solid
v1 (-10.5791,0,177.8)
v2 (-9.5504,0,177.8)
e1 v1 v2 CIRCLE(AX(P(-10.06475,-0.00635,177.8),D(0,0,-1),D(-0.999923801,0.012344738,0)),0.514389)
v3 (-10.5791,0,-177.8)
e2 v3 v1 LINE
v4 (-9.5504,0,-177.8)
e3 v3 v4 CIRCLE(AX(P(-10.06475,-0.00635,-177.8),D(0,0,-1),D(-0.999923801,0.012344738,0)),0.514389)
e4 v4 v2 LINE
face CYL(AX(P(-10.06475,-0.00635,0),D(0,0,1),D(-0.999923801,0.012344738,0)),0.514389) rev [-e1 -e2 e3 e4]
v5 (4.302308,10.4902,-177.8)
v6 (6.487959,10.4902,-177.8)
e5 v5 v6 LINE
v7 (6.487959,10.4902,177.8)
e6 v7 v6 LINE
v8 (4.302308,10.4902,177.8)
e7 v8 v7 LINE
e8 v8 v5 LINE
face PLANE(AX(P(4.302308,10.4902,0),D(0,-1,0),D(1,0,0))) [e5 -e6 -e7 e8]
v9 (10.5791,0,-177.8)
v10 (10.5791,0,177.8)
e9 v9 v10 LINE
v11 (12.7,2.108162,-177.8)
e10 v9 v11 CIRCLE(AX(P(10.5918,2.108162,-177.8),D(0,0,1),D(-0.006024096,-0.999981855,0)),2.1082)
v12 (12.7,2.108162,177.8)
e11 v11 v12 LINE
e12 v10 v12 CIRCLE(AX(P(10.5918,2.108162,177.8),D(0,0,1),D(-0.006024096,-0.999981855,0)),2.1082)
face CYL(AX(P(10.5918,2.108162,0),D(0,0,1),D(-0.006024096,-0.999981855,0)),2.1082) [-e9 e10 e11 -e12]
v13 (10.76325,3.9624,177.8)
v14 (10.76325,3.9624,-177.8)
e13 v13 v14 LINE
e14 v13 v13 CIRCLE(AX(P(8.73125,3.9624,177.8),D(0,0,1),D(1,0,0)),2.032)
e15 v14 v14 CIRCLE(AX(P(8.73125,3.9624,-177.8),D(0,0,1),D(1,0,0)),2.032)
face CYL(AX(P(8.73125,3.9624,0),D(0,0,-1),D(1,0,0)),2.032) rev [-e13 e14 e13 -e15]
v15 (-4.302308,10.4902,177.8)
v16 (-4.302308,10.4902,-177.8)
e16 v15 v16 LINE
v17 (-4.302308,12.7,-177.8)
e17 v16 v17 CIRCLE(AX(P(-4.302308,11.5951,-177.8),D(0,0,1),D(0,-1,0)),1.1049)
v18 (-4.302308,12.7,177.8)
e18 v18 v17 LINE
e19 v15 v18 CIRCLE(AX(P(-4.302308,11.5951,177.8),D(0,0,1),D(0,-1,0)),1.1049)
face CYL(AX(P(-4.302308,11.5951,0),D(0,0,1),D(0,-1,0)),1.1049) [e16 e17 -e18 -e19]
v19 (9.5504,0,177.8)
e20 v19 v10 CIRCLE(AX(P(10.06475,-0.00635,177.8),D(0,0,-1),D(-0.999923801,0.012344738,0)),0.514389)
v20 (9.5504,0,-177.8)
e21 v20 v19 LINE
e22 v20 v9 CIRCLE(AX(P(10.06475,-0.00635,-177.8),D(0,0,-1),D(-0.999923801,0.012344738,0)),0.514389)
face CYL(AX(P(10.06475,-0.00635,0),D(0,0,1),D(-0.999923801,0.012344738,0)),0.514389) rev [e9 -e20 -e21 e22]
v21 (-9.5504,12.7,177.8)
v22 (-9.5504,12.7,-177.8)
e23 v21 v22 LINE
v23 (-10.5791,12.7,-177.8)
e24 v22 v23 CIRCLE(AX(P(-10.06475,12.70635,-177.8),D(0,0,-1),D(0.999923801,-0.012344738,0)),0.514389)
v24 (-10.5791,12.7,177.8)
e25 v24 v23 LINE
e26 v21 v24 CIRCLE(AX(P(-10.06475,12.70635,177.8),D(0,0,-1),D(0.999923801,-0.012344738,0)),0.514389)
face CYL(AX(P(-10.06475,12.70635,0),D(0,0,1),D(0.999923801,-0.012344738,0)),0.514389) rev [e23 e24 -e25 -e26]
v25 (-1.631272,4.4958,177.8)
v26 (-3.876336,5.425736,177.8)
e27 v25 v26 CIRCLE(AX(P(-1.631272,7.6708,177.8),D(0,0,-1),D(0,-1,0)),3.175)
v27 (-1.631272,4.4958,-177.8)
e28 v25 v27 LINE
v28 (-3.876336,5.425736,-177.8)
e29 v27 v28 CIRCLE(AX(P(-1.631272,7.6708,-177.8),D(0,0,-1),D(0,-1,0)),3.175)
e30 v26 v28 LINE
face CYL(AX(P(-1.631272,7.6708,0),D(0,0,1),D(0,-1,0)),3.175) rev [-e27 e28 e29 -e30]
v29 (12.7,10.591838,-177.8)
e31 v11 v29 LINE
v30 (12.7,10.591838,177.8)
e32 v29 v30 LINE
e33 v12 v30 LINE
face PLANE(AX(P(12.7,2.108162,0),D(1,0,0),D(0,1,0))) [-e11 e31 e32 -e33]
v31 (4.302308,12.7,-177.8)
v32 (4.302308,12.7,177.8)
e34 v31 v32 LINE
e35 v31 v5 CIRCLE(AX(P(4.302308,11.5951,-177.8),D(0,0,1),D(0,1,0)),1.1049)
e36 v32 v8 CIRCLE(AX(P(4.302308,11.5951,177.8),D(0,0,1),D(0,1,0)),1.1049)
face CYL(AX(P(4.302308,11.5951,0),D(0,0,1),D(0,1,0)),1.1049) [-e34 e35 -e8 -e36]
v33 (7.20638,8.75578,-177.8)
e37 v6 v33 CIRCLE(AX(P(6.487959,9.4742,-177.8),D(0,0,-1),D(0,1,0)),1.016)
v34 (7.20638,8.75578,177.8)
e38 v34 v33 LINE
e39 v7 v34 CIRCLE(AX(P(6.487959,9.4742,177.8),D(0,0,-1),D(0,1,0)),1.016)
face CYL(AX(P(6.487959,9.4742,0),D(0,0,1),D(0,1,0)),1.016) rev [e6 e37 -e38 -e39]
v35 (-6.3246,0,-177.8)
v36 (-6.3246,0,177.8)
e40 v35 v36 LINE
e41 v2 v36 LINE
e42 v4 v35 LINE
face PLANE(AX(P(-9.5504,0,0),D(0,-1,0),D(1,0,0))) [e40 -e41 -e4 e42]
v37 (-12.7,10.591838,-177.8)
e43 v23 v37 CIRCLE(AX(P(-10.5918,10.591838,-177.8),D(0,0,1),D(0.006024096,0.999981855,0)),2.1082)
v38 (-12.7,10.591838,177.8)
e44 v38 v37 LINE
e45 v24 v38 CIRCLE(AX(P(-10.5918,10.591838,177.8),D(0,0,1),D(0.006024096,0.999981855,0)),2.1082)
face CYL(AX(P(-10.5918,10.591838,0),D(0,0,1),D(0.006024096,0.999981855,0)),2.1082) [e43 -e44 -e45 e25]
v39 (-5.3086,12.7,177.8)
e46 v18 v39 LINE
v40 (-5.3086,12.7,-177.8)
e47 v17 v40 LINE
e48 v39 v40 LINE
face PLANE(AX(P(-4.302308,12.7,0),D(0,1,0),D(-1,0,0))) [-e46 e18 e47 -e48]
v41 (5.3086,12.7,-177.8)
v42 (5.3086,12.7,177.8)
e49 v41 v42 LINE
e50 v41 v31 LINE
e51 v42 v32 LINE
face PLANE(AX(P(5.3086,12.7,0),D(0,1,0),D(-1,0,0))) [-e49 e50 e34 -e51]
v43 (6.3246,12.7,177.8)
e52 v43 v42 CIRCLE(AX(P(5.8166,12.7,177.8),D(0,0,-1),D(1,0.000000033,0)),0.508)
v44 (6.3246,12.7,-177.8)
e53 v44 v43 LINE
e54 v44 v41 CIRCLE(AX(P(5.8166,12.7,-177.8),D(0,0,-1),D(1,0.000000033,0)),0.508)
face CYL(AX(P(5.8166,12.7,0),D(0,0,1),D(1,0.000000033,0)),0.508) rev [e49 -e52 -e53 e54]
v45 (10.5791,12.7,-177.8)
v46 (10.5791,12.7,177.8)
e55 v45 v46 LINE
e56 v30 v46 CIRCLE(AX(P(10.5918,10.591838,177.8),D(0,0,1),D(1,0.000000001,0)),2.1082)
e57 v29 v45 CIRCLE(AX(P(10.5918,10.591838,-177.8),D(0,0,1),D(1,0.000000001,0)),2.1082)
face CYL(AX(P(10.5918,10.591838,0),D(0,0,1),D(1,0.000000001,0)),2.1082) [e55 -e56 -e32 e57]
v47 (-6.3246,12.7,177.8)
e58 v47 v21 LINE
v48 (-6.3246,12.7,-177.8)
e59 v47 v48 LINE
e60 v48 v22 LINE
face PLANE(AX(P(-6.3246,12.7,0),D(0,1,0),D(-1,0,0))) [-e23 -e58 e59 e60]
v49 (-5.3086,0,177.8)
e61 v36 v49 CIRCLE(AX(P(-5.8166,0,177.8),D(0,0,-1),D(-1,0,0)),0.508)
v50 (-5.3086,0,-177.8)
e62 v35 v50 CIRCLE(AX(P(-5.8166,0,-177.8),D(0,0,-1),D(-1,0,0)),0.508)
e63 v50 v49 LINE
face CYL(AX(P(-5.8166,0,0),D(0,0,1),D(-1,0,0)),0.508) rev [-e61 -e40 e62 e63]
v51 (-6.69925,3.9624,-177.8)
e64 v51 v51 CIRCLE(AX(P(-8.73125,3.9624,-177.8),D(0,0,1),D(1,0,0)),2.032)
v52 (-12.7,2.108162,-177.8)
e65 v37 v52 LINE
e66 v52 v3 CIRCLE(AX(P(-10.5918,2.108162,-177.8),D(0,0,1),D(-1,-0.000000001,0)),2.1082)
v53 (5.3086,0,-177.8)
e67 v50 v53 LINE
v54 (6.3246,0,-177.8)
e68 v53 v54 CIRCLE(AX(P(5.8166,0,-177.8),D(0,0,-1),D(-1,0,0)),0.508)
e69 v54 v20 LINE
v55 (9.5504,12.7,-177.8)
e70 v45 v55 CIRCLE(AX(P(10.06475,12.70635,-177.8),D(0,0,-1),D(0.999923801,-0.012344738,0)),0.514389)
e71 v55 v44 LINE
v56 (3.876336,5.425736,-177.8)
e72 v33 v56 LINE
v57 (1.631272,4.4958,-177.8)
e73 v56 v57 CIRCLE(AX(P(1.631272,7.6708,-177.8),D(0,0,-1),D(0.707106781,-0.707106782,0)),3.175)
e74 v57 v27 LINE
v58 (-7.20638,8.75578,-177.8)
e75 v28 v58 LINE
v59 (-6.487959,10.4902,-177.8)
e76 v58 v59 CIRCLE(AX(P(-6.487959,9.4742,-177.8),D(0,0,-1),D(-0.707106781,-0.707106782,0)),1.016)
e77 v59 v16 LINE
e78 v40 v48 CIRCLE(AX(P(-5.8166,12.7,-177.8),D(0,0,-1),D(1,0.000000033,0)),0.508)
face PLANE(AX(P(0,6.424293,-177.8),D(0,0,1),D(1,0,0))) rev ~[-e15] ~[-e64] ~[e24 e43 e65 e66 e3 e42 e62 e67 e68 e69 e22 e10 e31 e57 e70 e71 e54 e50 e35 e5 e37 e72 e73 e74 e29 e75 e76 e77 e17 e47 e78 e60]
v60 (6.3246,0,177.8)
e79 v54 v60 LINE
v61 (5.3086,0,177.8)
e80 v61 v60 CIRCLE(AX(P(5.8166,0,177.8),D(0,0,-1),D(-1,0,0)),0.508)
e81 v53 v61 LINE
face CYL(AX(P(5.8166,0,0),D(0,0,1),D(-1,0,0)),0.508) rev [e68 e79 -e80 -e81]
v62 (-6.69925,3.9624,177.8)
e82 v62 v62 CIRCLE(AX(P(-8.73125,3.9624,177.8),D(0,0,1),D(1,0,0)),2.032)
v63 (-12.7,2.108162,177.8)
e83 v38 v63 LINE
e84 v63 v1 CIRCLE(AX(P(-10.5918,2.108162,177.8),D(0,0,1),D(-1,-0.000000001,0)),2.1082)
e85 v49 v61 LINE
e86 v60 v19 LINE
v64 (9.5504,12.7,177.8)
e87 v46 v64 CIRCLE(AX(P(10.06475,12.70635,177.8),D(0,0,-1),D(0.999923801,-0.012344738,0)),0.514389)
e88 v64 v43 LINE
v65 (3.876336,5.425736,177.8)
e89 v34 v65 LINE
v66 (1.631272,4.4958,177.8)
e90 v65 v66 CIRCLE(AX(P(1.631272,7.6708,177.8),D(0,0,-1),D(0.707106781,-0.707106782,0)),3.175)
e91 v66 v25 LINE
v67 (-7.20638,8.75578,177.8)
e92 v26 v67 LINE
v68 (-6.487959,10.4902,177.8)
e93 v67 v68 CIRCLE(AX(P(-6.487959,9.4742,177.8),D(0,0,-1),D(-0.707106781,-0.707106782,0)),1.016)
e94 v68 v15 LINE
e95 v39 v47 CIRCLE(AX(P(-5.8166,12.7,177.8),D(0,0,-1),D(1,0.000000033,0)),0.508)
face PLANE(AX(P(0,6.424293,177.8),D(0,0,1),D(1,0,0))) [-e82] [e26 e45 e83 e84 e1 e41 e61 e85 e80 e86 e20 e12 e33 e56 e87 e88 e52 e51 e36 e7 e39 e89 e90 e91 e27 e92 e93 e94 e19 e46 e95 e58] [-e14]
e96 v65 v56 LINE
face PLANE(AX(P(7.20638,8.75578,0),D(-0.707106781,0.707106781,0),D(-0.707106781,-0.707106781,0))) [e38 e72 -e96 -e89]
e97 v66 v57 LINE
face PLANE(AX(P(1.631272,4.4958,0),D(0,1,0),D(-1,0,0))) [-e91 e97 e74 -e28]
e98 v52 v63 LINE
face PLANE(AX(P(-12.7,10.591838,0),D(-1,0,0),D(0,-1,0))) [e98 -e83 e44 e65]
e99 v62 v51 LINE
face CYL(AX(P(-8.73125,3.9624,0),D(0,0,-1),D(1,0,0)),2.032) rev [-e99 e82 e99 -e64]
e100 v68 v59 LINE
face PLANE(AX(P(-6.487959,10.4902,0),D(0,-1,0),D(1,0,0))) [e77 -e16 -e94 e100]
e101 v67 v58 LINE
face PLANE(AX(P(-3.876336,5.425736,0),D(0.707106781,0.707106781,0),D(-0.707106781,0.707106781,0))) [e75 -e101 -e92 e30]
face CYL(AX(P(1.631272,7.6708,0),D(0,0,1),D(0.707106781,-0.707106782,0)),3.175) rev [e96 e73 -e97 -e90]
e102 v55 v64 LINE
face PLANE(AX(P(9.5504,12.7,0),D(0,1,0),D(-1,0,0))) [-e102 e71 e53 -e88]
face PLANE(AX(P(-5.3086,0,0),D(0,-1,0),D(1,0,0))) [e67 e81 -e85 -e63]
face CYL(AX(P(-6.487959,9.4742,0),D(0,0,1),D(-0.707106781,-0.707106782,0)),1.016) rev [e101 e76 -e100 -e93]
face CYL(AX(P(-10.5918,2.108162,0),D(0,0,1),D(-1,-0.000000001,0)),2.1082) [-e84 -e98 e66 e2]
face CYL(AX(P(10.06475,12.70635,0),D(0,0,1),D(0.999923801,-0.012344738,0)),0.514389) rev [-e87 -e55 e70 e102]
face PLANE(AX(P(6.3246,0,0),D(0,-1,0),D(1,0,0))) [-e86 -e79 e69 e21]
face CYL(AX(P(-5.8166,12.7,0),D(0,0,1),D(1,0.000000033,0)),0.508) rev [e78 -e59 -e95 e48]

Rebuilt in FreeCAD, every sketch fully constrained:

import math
import FreeCAD as App
import Part
import Sketcher
from FreeCAD import Vector
Q = App.Units.Quantity

doc = App.newDocument("Part")
params = doc.addObject("Spreadsheet::Sheet", "Params")
for row, (alias, value) in enumerate([
    ("sketch1_diameter", "0.16 in"),
    ("sketch1_radius", "0.02 in"),
    ("sketch1_radius2", "0.04 in"),
    ("sketch1_radius3", "0.083 in"),
    ("sketch1_radius4", "0.125 in"),
    ("pad1_length", "14 in"),
], start=1):
    params.set(f"A{row}", alias)
    params.set(f"B{row}", "=" + value)
    params.setAlias(f"B{row}", alias)

body = doc.addObject("PartDesign::Body", "Body")

# Sketch on XY plane
sketch1 = doc.addObject("Sketcher::SketchObject", "Sketch")
body.addObject(sketch1)
sketch1.AttachmentSupport = (doc.XY_Plane, [""])
sketch1.MapMode = "FlatFace"
sketch1.addGeometry([
    Part.LineSegment(Vector(-12.7, 10.591838, 0), Vector(-12.7, 2.108162, 0)),  # 0
    Part.ArcOfCircle(Part.Circle(Vector(-10.5918, 2.108162, 0), Vector(0, 0, 1), 2.1082), math.radians(-180), math.radians(-89.654843)),  # 1
    Part.ArcOfCircle(Part.Circle(Vector(-10.06475, -0.00635, 0), Vector(0, 0, 1), 0.514389), math.radians(0.707319), math.radians(179.292681)),  # 2
    Part.LineSegment(Vector(-9.5504, 0, 0), Vector(-6.3246, 0, 0)),  # 3
    Part.ArcOfCircle(Part.Circle(Vector(-5.8166, 0, 0), Vector(0, 0, 1), 0.508), math.radians(0), math.radians(180)),  # 4
    Part.LineSegment(Vector(-5.3086, 0, 0), Vector(5.3086, 0, 0)),  # 5
    Part.ArcOfCircle(Part.Circle(Vector(5.8166, 0, 0), Vector(0, 0, 1), 0.508), math.radians(0), math.radians(180)),  # 6
    Part.LineSegment(Vector(6.3246, 0, 0), Vector(9.5504, 0, 0)),  # 7
    Part.ArcOfCircle(Part.Circle(Vector(10.06475, -0.00635, 0), Vector(0, 0, 1), 0.514389), math.radians(0.707319), math.radians(179.292681)),  # 8
    Part.ArcOfCircle(Part.Circle(Vector(10.5918, 2.108162, 0), Vector(0, 0, 1), 2.1082), math.radians(-90.345157), math.radians(0)),  # 9
    Part.LineSegment(Vector(12.7, 2.108162, 0), Vector(12.7, 10.591838, 0)),  # 10
    Part.ArcOfCircle(Part.Circle(Vector(10.5918, 10.591838, 0), Vector(0, 0, 1), 2.1082), math.radians(0), math.radians(90.345157)),  # 11
    Part.ArcOfCircle(Part.Circle(Vector(10.06475, 12.70635, 0), Vector(0, 0, 1), 0.514389), math.radians(-179.292681), math.radians(-0.707319)),  # 12
    Part.LineSegment(Vector(9.5504, 12.7, 0), Vector(6.3246, 12.7, 0)),  # 13
    Part.ArcOfCircle(Part.Circle(Vector(5.8166, 12.7, 0), Vector(0, 0, 1), 0.508), math.radians(179.999998), math.radians(360.000002)),  # 14
    Part.LineSegment(Vector(5.3086, 12.7, 0), Vector(4.302308, 12.7, 0)),  # 15
    Part.ArcOfCircle(Part.Circle(Vector(4.302308, 11.5951, 0), Vector(0, 0, 1), 1.1049), math.radians(90), math.radians(270)),  # 16
    Part.LineSegment(Vector(4.302308, 10.4902, 0), Vector(6.487959, 10.4902, 0)),  # 17
    Part.ArcOfCircle(Part.Circle(Vector(6.487959, 9.4742, 0), Vector(0, 0, 1), 1.016), math.radians(-45), math.radians(90)),  # 18
    Part.LineSegment(Vector(7.20638, 8.75578, 0), Vector(3.876336, 5.425736, 0)),  # 19
    Part.ArcOfCircle(Part.Circle(Vector(1.631272, 7.6708, 0), Vector(0, 0, 1), 3.175), math.radians(-90), math.radians(-45)),  # 20
    Part.LineSegment(Vector(1.631272, 4.4958, 0), Vector(-1.631272, 4.4958, 0)),  # 21
    Part.ArcOfCircle(Part.Circle(Vector(-1.631272, 7.6708, 0), Vector(0, 0, 1), 3.175), math.radians(-135), math.radians(-90)),  # 22
    Part.LineSegment(Vector(-3.876336, 5.425736, 0), Vector(-7.20638, 8.75578, 0)),  # 23
    Part.ArcOfCircle(Part.Circle(Vector(-6.487959, 9.4742, 0), Vector(0, 0, 1), 1.016), math.radians(90), math.radians(225)),  # 24
    Part.LineSegment(Vector(-6.487959, 10.4902, 0), Vector(-4.302308, 10.4902, 0)),  # 25
    Part.ArcOfCircle(Part.Circle(Vector(-4.302308, 11.5951, 0), Vector(0, 0, 1), 1.1049), math.radians(-90), math.radians(90)),  # 26
    Part.LineSegment(Vector(-4.302308, 12.7, 0), Vector(-5.3086, 12.7, 0)),  # 27
    Part.ArcOfCircle(Part.Circle(Vector(-5.8166, 12.7, 0), Vector(0, 0, 1), 0.508), math.radians(179.999998), math.radians(360.000002)),  # 28
    Part.LineSegment(Vector(-6.3246, 12.7, 0), Vector(-9.5504, 12.7, 0)),  # 29
    Part.ArcOfCircle(Part.Circle(Vector(-10.06475, 12.70635, 0), Vector(0, 0, 1), 0.514389), math.radians(-179.292681), math.radians(-0.707319)),  # 30
    Part.ArcOfCircle(Part.Circle(Vector(-10.5918, 10.591838, 0), Vector(0, 0, 1), 2.1082), math.radians(89.654843), math.radians(180)),  # 31
    Part.Circle(Vector(-8.73125, 3.9624, 0), Vector(0, 0, 1), 2.032),  # 32
    Part.Circle(Vector(8.73125, 3.9624, 0), Vector(0, 0, 1), 2.032),  # 33
], False)
sketch1.addConstraint([
    Sketcher.Constraint("Tangent", 0, 2, 1, 1),
    Sketcher.Constraint("Coincident", 1, 2, 2, 2),
    Sketcher.Constraint("Coincident", 2, 1, 3, 1),
    Sketcher.Constraint("Coincident", 3, 2, 4, 2),
    Sketcher.Constraint("Coincident", 4, 1, 5, 1),
    Sketcher.Constraint("Coincident", 5, 2, 6, 2),
    Sketcher.Constraint("Coincident", 6, 1, 7, 1),
    Sketcher.Constraint("Coincident", 7, 2, 8, 2),
    Sketcher.Constraint("Coincident", 8, 1, 9, 1),
    Sketcher.Constraint("Tangent", 9, 2, 10, 1),
    Sketcher.Constraint("Tangent", 10, 2, 11, 1),
    Sketcher.Constraint("Coincident", 11, 2, 12, 2),
    Sketcher.Constraint("Coincident", 12, 1, 13, 1),
    Sketcher.Constraint("Coincident", 13, 2, 14, 2),
    Sketcher.Constraint("Coincident", 14, 1, 15, 1),
    Sketcher.Constraint("Tangent", 15, 2, 16, 1),
    Sketcher.Constraint("Tangent", 16, 2, 17, 1),
    Sketcher.Constraint("Tangent", 17, 2, 18, 2),
    Sketcher.Constraint("Tangent", 18, 1, 19, 1),
    Sketcher.Constraint("Tangent", 19, 2, 20, 2),
    Sketcher.Constraint("Tangent", 20, 1, 21, 1),
    Sketcher.Constraint("Tangent", 21, 2, 22, 2),
    Sketcher.Constraint("Tangent", 22, 1, 23, 1),
    Sketcher.Constraint("Tangent", 23, 2, 24, 2),
    Sketcher.Constraint("Tangent", 24, 1, 25, 1),
    Sketcher.Constraint("Tangent", 25, 2, 26, 1),
    Sketcher.Constraint("Tangent", 26, 2, 27, 1),
    Sketcher.Constraint("Coincident", 27, 2, 28, 2),
    Sketcher.Constraint("Coincident", 28, 1, 29, 1),
    Sketcher.Constraint("Coincident", 29, 2, 30, 2),
    Sketcher.Constraint("Coincident", 30, 1, 31, 1),
    Sketcher.Constraint("Tangent", 31, 2, 0, 1),
    Sketcher.Constraint("Vertical", 0),
    Sketcher.Constraint("Horizontal", 3),
    Sketcher.Constraint("Horizontal", 5),
    Sketcher.Constraint("Horizontal", 7),
    Sketcher.Constraint("Vertical", 10),
    Sketcher.Constraint("Horizontal", 13),
    Sketcher.Constraint("Horizontal", 15),
    Sketcher.Constraint("Horizontal", 17),
    Sketcher.Constraint("Horizontal", 21),
    Sketcher.Constraint("Horizontal", 25),
    Sketcher.Constraint("Horizontal", 27),
    Sketcher.Constraint("Horizontal", 29),
    Sketcher.Constraint("Equal", 4, 6),
    Sketcher.Constraint("Equal", 2, 8),
    Sketcher.Constraint("Equal", 1, 9),
    Sketcher.Constraint("Equal", 9, 11),
    Sketcher.Constraint("Equal", 8, 12),
    Sketcher.Constraint("Equal", 6, 14),
    Sketcher.Constraint("Equal", 20, 22),
    Sketcher.Constraint("Equal", 18, 24),
    Sketcher.Constraint("Equal", 16, 26),
    Sketcher.Constraint("Equal", 14, 28),
    Sketcher.Constraint("Equal", 12, 30),
    Sketcher.Constraint("Equal", 11, 31),
    Sketcher.Constraint("Equal", 32, 33),
    Sketcher.Constraint("Symmetric", 4, 3, 6, 3, -1, 1),
    Sketcher.Constraint("Symmetric", 2, 1, 7, 2, -1, 1),
    Sketcher.Constraint("Symmetric", 1, 2, 8, 1, -1, 1),
    Sketcher.Constraint("Symmetric", 2, 3, 8, 3, -2),
    Sketcher.Constraint("Symmetric", 18, 3, 24, 3, -2),
    Sketcher.Constraint("Symmetric", 14, 3, 28, 3, -2),
    Sketcher.Constraint("Symmetric", 12, 3, 30, 3, -2),
    Sketcher.Constraint("Symmetric", 11, 3, 31, 3, -2),
    Sketcher.Constraint("Symmetric", 32, 3, 33, 3, -2),
    Sketcher.Constraint("PointOnObject", 4, 3, -1),
    Sketcher.Constraint("PointOnObject", 4, 1, -1),
    Sketcher.Constraint("Perpendicular", 19, 23),
    Sketcher.Constraint("Horizontal", 28, 3, 11, 2),
    Sketcher.Constraint("Horizontal", 11, 2, 12, 1),
    Sketcher.Constraint("Horizontal", 13, 2, 14, 1),
    Sketcher.Constraint("Horizontal", 19, 2, 22, 1),
    Sketcher.Constraint("Horizontal", 27, 2, 28, 1),
    Sketcher.Constraint("Vertical", 8, 3, 12, 3),
    Sketcher.Constraint("Vertical", 6, 3, 14, 3),
    Sketcher.Constraint("Vertical", 7, 2, 12, 1),
    Sketcher.Constraint("Equal", 17, 25),
    Sketcher.Constraint("Diameter", 32, Q("0.16 in")),
    Sketcher.Constraint("Radius", 4, Q("0.02 in")),
    Sketcher.Constraint("Radius", 18, Q("0.04 in")),
    Sketcher.Constraint("Radius", 1, Q("0.083 in")),
    Sketcher.Constraint("Radius", 20, Q("0.125 in")),
    Sketcher.Constraint("DistanceY", -1, 1, 14, 3, Q("0.5 in")),
    Sketcher.Constraint("DistanceX", 0, 2, -1, 1, Q("0.5 in")),
    Sketcher.Constraint("Radius", 16, Q("0.0435 in")),
    Sketcher.Constraint("DistanceX", 3, 1, 3, 2, Q("0.127 in")),
    Sketcher.Constraint("DistanceX", 5, 1, 5, 2, Q("0.418 in")),
    Sketcher.Constraint("DistanceY", -1, 1, 20, 3, Q("0.302 in")),
    Sketcher.Constraint("DistanceX", 32, 3, -1, 1, Q("0.34375 in")),
    Sketcher.Constraint("DistanceY", -1, 1, 32, 3, Q("0.156 in")),
    Sketcher.Constraint("Radius", 2, Q("0.514389 mm")),
    Sketcher.Constraint("DistanceY", 2, 3, 32, 3, Q("0.15625 in")),
    Sketcher.Constraint("DistanceX", 17, 1, 17, 2, Q("2.185651 mm")),
    Sketcher.Constraint("DistanceX", 15, 2, 15, 1, Q("1.006292 mm")),
])
sketch1.setExpression("Constraints[78]", "Params.sketch1_diameter")
sketch1.setExpression("Constraints[79]", "Params.sketch1_radius")
sketch1.setExpression("Constraints[80]", "Params.sketch1_radius2")
sketch1.setExpression("Constraints[81]", "Params.sketch1_radius3")
sketch1.setExpression("Constraints[82]", "Params.sketch1_radius4")
pad1 = doc.addObject("PartDesign::Pad", "Pad")
body.addObject(pad1)
pad1.Profile = sketch1
pad1.setExpression("Length", "Params.pad1_length")
pad1.Midplane = True

doc.recompute()
